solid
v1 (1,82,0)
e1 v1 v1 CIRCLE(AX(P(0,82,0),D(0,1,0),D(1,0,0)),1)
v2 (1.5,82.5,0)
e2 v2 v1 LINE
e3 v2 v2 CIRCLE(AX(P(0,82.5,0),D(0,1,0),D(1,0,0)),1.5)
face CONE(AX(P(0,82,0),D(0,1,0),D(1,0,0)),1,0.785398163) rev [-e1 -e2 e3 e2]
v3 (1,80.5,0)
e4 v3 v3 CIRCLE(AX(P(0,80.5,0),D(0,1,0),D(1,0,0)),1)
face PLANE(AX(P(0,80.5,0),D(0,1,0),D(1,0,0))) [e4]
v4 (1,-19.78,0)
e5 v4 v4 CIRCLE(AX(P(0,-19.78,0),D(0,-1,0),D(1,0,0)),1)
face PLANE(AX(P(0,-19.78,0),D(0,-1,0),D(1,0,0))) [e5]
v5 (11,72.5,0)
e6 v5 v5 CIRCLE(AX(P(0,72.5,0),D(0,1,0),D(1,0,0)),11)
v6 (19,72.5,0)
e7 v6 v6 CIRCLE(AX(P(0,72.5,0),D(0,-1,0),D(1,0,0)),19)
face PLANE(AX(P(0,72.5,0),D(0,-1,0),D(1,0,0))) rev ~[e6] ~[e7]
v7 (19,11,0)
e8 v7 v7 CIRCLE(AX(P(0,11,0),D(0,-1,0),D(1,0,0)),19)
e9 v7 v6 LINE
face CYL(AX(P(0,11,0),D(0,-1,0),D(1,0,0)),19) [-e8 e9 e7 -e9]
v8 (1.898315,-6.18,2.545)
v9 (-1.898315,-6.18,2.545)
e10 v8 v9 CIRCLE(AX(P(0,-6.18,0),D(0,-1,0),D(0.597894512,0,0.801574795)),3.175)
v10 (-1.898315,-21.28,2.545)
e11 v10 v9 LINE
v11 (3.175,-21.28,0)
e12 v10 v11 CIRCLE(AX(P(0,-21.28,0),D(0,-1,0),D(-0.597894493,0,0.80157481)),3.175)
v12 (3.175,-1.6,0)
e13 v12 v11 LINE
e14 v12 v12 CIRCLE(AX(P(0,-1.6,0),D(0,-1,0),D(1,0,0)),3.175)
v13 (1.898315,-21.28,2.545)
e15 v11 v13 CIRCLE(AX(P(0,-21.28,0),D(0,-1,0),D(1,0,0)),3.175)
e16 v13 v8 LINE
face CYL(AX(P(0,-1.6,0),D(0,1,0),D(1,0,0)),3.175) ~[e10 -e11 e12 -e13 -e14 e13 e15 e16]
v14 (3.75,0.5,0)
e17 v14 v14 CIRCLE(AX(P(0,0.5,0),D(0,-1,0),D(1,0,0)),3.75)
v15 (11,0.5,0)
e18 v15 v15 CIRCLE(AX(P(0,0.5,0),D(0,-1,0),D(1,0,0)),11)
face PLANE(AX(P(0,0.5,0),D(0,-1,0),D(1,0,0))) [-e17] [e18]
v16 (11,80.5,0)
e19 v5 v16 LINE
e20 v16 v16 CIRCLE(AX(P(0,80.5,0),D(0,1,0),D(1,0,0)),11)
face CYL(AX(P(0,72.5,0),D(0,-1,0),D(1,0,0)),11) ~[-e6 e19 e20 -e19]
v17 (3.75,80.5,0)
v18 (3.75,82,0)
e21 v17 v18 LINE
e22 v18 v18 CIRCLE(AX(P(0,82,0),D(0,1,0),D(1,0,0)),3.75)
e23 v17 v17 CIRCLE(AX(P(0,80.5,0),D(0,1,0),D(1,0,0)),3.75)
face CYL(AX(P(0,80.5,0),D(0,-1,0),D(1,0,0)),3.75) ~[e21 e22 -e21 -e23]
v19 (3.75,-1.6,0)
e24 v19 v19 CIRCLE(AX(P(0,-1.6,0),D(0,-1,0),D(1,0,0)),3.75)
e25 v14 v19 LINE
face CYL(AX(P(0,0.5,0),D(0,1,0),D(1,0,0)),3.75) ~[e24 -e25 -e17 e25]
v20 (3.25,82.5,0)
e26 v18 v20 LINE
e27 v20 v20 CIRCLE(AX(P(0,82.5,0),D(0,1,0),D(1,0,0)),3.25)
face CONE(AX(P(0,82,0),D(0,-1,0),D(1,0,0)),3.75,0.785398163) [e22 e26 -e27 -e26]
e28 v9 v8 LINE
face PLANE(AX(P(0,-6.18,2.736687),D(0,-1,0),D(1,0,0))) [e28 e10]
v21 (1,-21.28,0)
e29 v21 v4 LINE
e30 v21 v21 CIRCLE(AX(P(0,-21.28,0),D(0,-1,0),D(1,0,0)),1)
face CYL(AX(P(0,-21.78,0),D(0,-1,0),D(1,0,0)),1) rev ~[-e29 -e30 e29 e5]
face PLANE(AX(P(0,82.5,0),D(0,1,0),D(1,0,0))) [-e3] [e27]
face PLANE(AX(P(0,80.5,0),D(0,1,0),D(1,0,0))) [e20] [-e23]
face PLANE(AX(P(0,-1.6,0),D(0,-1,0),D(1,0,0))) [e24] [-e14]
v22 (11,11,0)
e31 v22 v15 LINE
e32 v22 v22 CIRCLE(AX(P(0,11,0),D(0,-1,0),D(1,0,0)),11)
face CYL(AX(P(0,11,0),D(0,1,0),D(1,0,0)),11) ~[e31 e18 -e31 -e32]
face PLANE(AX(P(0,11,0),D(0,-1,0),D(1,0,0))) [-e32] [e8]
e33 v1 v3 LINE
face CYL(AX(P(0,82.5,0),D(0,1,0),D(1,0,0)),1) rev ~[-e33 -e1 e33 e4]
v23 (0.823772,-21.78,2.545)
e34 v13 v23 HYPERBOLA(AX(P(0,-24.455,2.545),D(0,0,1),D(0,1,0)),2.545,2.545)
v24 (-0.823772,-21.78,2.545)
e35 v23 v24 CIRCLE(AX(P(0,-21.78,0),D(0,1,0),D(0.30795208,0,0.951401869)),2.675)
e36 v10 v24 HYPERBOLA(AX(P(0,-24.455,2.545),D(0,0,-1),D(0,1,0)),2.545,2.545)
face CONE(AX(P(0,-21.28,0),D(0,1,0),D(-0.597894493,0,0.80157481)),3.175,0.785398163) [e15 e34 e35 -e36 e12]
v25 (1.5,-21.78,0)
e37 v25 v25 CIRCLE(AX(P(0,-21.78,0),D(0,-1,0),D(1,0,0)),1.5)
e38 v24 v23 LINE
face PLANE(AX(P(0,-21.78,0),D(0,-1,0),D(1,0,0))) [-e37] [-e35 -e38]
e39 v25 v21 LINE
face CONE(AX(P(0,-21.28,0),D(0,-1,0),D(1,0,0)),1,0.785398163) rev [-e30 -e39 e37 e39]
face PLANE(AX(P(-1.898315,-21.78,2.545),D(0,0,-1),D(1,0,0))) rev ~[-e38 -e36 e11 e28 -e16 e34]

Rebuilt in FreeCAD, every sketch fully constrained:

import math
import FreeCAD as App
import Part
import Sketcher
from FreeCAD import Vector


def edges_at(feature, points):
    """Names of the edges that pass closest to the given points."""
    edges = feature.Shape.Edges
    near = lambda p: min(range(len(edges)), key=lambda i: edges[i].distToShape(Part.Vertex(*p))[0])
    return sorted({f"Edge{near(p) + 1}" for p in points})

doc = App.newDocument("Part")
params = doc.addObject("Spreadsheet::Sheet", "Params")
for row, (alias, value) in enumerate([
    ("sketch1_diameter", "38 mm"),
    ("pad1_length", "61.5 mm"),
    ("sketch2_diameter", "22 mm"),
    ("pad2_length", "10.5 mm"),
    ("sketch3_diameter", "22 mm"),
    ("pad3_length", "8 mm"),
    ("sketch4_diameter", "7.5 mm"),
    ("pad4_length", "2 mm"),
    ("sketch5_diameter", "2 mm"),
    ("pocket1_length", "2 mm"),
    ("chamfer_size", "0.5 mm"),
    ("sketch6_diameter", "7.5 mm"),
    ("pad5_length", "2.1 mm"),
    ("sketch7_diameter", "6.35 mm"),
    ("pad6_length", "20.18 mm"),
    ("pocket2_length", "15.6 mm"),
    ("sketch9_diameter", "2 mm"),
    ("pocket3_length", "2 mm"),
    ("chamfer2_size", "0.5 mm"),
], start=1):
    params.set(f"A{row}", alias)
    params.set(f"B{row}", "=" + value)
    params.setAlias(f"B{row}", alias)

body = doc.addObject("PartDesign::Body", "Body")

# Sketch on XZ plane
sketch1 = body.newObject("Sketcher::SketchObject", "Sketch")
sketch1.AttachmentSupport = (doc.getObject("XZ_Plane"), [""])
sketch1.MapMode = "FlatFace"
sketch1.addGeometry(Part.Circle(Vector(0, 0, 0), Vector(0, 0, 1), 19), False)
sketch1.addConstraint([
    Sketcher.Constraint("Coincident", 0, 3, -1, 1),
    Sketcher.Constraint("Diameter", 0, 38.0),
])
sketch1.setExpression("Constraints[1]", "Params.sketch1_diameter")
pad1 = body.newObject("PartDesign::Pad", "Pad")
pad1.Profile = sketch1
pad1.setExpression("Length", "Params.pad1_length")
pad1.Reversed = True

# Sketch on XZ plane
sketch2 = body.newObject("Sketcher::SketchObject", "Sketch001")
sketch2.AttachmentSupport = (doc.getObject("XZ_Plane"), [""])
sketch2.MapMode = "FlatFace"
sketch2.addGeometry(Part.Circle(Vector(0, 0, 0), Vector(0, 0, 1), 11), False)
sketch2.addConstraint([
    Sketcher.Constraint("Coincident", 0, 3, -1, 1),
    Sketcher.Constraint("Diameter", 0, 22.0),
])
sketch2.setExpression("Constraints[1]", "Params.sketch2_diameter")
pad2 = body.newObject("PartDesign::Pad", "Pad001")
pad2.Profile = sketch2
pad2.setExpression("Length", "Params.pad2_length")

# Sketch on XZ plane
sketch3 = body.newObject("Sketcher::SketchObject", "Sketch002")
sketch3.AttachmentSupport = (doc.getObject("XZ_Plane"), [""])
sketch3.MapMode = "FlatFace"
sketch3.AttachmentOffset = App.Placement(Vector(0, 0, -61.5), App.Rotation())
sketch3.addGeometry(Part.Circle(Vector(0, 0, 0), Vector(0, 0, 1), 11), False)
sketch3.addConstraint([
    Sketcher.Constraint("Coincident", 0, 3, -1, 1),
    Sketcher.Constraint("Diameter", 0, 22.0),
])
sketch3.setExpression("Constraints[1]", "Params.sketch3_diameter")
pad3 = body.newObject("PartDesign::Pad", "Pad002")
pad3.Profile = sketch3
pad3.setExpression("Length", "Params.pad3_length")
pad3.Reversed = True

# Sketch on XZ plane
sketch4 = body.newObject("Sketcher::SketchObject", "Sketch003")
sketch4.AttachmentSupport = (doc.getObject("XZ_Plane"), [""])
sketch4.MapMode = "FlatFace"
sketch4.AttachmentOffset = App.Placement(Vector(0, 0, -69.5), App.Rotation())
sketch4.addGeometry(Part.Circle(Vector(0, 0, 0), Vector(0, 0, 1), 3.75), False)
sketch4.addConstraint([
    Sketcher.Constraint("Coincident", 0, 3, -1, 1),
    Sketcher.Constraint("Diameter", 0, 7.5),
])
sketch4.setExpression("Constraints[1]", "Params.sketch4_diameter")
pad4 = body.newObject("PartDesign::Pad", "Pad003")
pad4.Profile = sketch4
pad4.setExpression("Length", "Params.pad4_length")
pad4.Reversed = True

# Sketch on XZ plane
sketch5 = body.newObject("Sketcher::SketchObject", "Sketch004")
sketch5.AttachmentSupport = (doc.getObject("XZ_Plane"), [""])
sketch5.MapMode = "FlatFace"
sketch5.AttachmentOffset = App.Placement(Vector(0, 0, -71.5), App.Rotation())
sketch5.addGeometry(Part.Circle(Vector(0, 0, 0), Vector(0, 0, 1), 1), False)
sketch5.addConstraint([
    Sketcher.Constraint("Coincident", 0, 3, -1, 1),
    Sketcher.Constraint("Diameter", 0, 2.0),
])
sketch5.setExpression("Constraints[1]", "Params.sketch5_diameter")
pocket1 = body.newObject("PartDesign::Pocket", "Pocket")
pocket1.Profile = sketch5
pocket1.setExpression("Length", "Params.pocket1_length")
pocket1.Reversed = True
doc.recompute()

chamfer = body.newObject("PartDesign::Chamfer", "Chamfer")
chamfer.Base = (pocket1, edges_at(pocket1, [(-3.75, 71.5, 0), (-1, 71.5, 0)]))
chamfer.setExpression("Size", "Params.chamfer_size")

# Sketch on XZ plane
sketch6 = body.newObject("Sketcher::SketchObject", "Sketch005")
sketch6.AttachmentSupport = (doc.getObject("XZ_Plane"), [""])
sketch6.MapMode = "FlatFace"
sketch6.AttachmentOffset = App.Placement(Vector(0, 0, 10.5), App.Rotation())
sketch6.addGeometry(Part.Circle(Vector(0, 0, 0), Vector(0, 0, 1), 3.75), False)
sketch6.addConstraint([
    Sketcher.Constraint("Coincident", 0, 3, -1, 1),
    Sketcher.Constraint("Diameter", 0, 7.5),
])
sketch6.setExpression("Constraints[1]", "Params.sketch6_diameter")
pad5 = body.newObject("PartDesign::Pad", "Pad004")
pad5.Profile = sketch6
pad5.setExpression("Length", "Params.pad5_length")

# Sketch on XZ plane
sketch7 = body.newObject("Sketcher::SketchObject", "Sketch006")
sketch7.AttachmentSupport = (doc.getObject("XZ_Plane"), [""])
sketch7.MapMode = "FlatFace"
sketch7.AttachmentOffset = App.Placement(Vector(0, 0, 12.6), App.Rotation())
sketch7.addGeometry(Part.Circle(Vector(0, 0, 0), Vector(0, 0, 1), 3.175), False)
sketch7.addConstraint([
    Sketcher.Constraint("Coincident", 0, 3, -1, 1),
    Sketcher.Constraint("Diameter", 0, 6.35),
])
sketch7.setExpression("Constraints[1]", "Params.sketch7_diameter")
pad6 = body.newObject("PartDesign::Pad", "Pad005")
pad6.Profile = sketch7
pad6.setExpression("Length", "Params.pad6_length")

# Sketch on XZ plane
sketch8 = body.newObject("Sketcher::SketchObject", "Sketch007")
sketch8.AttachmentSupport = (doc.getObject("XZ_Plane"), [""])
sketch8.MapMode = "FlatFace"
sketch8.AttachmentOffset = App.Placement(Vector(0, 0, 32.78), App.Rotation())
sketch8.addGeometry([
    Part.LineSegment(Vector(-1.898315, 2.545, 0), Vector(1.898315, 2.545, 0)),
    Part.ArcOfCircle(Part.Circle(Vector(0, 0, 0), Vector(0, 0, 1), 3.175), math.radians(53.280748), math.radians(126.719252)),
], False)
sketch8.addConstraint([
    Sketcher.Constraint("Coincident", 0, 1, 1, 2),
    Sketcher.Constraint("Coincident", 1, 1, 0, 2),
    Sketcher.Constraint("Horizontal", 0),
    Sketcher.Constraint("Coincident", 1, 3, -1, 1),
    Sketcher.Constraint("Radius", 1, 3.175),
    Sketcher.Constraint("DistanceY", -1, 1, 0, 1, 2.545),
])
pocket2 = body.newObject("PartDesign::Pocket", "Pocket001")
pocket2.Profile = sketch8
pocket2.setExpression("Length", "Params.pocket2_length")

# Sketch on XZ plane
sketch9 = body.newObject("Sketcher::SketchObject", "Sketch008")
sketch9.AttachmentSupport = (doc.getObject("XZ_Plane"), [""])
sketch9.MapMode = "FlatFace"
sketch9.AttachmentOffset = App.Placement(Vector(0, 0, 32.78), App.Rotation())
sketch9.addGeometry(Part.Circle(Vector(0, 0, 0), Vector(0, 0, 1), 1), False)
sketch9.addConstraint([
    Sketcher.Constraint("Coincident", 0, 3, -1, 1),
    Sketcher.Constraint("Diameter", 0, 2.0),
])
sketch9.setExpression("Constraints[1]", "Params.sketch9_diameter")
pocket3 = body.newObject("PartDesign::Pocket", "Pocket002")
pocket3.Profile = sketch9
pocket3.setExpression("Length", "Params.pocket3_length")
doc.recompute()

chamfer2 = body.newObject("PartDesign::Chamfer", "Chamfer001")
chamfer2.Base = (pocket3, edges_at(pocket3, [(-1, -32.78, 0), (-1.424, -32.78, -2.838), (2.838, -32.78, 1.424)]))
chamfer2.setExpression("Size", "Params.chamfer2_size")
body2 = doc.addObject("PartDesign::Body", "Body001")
doc.recompute()

body.Placement = App.Placement(Vector(0, 11, 0), App.Rotation(Vector(0, 0, 1), 0))
boolean = body2.newObject("PartDesign::Boolean", "Boolean")
boolean.Type = "Fuse"
boolean.addObjects([body])

doc.recompute()
